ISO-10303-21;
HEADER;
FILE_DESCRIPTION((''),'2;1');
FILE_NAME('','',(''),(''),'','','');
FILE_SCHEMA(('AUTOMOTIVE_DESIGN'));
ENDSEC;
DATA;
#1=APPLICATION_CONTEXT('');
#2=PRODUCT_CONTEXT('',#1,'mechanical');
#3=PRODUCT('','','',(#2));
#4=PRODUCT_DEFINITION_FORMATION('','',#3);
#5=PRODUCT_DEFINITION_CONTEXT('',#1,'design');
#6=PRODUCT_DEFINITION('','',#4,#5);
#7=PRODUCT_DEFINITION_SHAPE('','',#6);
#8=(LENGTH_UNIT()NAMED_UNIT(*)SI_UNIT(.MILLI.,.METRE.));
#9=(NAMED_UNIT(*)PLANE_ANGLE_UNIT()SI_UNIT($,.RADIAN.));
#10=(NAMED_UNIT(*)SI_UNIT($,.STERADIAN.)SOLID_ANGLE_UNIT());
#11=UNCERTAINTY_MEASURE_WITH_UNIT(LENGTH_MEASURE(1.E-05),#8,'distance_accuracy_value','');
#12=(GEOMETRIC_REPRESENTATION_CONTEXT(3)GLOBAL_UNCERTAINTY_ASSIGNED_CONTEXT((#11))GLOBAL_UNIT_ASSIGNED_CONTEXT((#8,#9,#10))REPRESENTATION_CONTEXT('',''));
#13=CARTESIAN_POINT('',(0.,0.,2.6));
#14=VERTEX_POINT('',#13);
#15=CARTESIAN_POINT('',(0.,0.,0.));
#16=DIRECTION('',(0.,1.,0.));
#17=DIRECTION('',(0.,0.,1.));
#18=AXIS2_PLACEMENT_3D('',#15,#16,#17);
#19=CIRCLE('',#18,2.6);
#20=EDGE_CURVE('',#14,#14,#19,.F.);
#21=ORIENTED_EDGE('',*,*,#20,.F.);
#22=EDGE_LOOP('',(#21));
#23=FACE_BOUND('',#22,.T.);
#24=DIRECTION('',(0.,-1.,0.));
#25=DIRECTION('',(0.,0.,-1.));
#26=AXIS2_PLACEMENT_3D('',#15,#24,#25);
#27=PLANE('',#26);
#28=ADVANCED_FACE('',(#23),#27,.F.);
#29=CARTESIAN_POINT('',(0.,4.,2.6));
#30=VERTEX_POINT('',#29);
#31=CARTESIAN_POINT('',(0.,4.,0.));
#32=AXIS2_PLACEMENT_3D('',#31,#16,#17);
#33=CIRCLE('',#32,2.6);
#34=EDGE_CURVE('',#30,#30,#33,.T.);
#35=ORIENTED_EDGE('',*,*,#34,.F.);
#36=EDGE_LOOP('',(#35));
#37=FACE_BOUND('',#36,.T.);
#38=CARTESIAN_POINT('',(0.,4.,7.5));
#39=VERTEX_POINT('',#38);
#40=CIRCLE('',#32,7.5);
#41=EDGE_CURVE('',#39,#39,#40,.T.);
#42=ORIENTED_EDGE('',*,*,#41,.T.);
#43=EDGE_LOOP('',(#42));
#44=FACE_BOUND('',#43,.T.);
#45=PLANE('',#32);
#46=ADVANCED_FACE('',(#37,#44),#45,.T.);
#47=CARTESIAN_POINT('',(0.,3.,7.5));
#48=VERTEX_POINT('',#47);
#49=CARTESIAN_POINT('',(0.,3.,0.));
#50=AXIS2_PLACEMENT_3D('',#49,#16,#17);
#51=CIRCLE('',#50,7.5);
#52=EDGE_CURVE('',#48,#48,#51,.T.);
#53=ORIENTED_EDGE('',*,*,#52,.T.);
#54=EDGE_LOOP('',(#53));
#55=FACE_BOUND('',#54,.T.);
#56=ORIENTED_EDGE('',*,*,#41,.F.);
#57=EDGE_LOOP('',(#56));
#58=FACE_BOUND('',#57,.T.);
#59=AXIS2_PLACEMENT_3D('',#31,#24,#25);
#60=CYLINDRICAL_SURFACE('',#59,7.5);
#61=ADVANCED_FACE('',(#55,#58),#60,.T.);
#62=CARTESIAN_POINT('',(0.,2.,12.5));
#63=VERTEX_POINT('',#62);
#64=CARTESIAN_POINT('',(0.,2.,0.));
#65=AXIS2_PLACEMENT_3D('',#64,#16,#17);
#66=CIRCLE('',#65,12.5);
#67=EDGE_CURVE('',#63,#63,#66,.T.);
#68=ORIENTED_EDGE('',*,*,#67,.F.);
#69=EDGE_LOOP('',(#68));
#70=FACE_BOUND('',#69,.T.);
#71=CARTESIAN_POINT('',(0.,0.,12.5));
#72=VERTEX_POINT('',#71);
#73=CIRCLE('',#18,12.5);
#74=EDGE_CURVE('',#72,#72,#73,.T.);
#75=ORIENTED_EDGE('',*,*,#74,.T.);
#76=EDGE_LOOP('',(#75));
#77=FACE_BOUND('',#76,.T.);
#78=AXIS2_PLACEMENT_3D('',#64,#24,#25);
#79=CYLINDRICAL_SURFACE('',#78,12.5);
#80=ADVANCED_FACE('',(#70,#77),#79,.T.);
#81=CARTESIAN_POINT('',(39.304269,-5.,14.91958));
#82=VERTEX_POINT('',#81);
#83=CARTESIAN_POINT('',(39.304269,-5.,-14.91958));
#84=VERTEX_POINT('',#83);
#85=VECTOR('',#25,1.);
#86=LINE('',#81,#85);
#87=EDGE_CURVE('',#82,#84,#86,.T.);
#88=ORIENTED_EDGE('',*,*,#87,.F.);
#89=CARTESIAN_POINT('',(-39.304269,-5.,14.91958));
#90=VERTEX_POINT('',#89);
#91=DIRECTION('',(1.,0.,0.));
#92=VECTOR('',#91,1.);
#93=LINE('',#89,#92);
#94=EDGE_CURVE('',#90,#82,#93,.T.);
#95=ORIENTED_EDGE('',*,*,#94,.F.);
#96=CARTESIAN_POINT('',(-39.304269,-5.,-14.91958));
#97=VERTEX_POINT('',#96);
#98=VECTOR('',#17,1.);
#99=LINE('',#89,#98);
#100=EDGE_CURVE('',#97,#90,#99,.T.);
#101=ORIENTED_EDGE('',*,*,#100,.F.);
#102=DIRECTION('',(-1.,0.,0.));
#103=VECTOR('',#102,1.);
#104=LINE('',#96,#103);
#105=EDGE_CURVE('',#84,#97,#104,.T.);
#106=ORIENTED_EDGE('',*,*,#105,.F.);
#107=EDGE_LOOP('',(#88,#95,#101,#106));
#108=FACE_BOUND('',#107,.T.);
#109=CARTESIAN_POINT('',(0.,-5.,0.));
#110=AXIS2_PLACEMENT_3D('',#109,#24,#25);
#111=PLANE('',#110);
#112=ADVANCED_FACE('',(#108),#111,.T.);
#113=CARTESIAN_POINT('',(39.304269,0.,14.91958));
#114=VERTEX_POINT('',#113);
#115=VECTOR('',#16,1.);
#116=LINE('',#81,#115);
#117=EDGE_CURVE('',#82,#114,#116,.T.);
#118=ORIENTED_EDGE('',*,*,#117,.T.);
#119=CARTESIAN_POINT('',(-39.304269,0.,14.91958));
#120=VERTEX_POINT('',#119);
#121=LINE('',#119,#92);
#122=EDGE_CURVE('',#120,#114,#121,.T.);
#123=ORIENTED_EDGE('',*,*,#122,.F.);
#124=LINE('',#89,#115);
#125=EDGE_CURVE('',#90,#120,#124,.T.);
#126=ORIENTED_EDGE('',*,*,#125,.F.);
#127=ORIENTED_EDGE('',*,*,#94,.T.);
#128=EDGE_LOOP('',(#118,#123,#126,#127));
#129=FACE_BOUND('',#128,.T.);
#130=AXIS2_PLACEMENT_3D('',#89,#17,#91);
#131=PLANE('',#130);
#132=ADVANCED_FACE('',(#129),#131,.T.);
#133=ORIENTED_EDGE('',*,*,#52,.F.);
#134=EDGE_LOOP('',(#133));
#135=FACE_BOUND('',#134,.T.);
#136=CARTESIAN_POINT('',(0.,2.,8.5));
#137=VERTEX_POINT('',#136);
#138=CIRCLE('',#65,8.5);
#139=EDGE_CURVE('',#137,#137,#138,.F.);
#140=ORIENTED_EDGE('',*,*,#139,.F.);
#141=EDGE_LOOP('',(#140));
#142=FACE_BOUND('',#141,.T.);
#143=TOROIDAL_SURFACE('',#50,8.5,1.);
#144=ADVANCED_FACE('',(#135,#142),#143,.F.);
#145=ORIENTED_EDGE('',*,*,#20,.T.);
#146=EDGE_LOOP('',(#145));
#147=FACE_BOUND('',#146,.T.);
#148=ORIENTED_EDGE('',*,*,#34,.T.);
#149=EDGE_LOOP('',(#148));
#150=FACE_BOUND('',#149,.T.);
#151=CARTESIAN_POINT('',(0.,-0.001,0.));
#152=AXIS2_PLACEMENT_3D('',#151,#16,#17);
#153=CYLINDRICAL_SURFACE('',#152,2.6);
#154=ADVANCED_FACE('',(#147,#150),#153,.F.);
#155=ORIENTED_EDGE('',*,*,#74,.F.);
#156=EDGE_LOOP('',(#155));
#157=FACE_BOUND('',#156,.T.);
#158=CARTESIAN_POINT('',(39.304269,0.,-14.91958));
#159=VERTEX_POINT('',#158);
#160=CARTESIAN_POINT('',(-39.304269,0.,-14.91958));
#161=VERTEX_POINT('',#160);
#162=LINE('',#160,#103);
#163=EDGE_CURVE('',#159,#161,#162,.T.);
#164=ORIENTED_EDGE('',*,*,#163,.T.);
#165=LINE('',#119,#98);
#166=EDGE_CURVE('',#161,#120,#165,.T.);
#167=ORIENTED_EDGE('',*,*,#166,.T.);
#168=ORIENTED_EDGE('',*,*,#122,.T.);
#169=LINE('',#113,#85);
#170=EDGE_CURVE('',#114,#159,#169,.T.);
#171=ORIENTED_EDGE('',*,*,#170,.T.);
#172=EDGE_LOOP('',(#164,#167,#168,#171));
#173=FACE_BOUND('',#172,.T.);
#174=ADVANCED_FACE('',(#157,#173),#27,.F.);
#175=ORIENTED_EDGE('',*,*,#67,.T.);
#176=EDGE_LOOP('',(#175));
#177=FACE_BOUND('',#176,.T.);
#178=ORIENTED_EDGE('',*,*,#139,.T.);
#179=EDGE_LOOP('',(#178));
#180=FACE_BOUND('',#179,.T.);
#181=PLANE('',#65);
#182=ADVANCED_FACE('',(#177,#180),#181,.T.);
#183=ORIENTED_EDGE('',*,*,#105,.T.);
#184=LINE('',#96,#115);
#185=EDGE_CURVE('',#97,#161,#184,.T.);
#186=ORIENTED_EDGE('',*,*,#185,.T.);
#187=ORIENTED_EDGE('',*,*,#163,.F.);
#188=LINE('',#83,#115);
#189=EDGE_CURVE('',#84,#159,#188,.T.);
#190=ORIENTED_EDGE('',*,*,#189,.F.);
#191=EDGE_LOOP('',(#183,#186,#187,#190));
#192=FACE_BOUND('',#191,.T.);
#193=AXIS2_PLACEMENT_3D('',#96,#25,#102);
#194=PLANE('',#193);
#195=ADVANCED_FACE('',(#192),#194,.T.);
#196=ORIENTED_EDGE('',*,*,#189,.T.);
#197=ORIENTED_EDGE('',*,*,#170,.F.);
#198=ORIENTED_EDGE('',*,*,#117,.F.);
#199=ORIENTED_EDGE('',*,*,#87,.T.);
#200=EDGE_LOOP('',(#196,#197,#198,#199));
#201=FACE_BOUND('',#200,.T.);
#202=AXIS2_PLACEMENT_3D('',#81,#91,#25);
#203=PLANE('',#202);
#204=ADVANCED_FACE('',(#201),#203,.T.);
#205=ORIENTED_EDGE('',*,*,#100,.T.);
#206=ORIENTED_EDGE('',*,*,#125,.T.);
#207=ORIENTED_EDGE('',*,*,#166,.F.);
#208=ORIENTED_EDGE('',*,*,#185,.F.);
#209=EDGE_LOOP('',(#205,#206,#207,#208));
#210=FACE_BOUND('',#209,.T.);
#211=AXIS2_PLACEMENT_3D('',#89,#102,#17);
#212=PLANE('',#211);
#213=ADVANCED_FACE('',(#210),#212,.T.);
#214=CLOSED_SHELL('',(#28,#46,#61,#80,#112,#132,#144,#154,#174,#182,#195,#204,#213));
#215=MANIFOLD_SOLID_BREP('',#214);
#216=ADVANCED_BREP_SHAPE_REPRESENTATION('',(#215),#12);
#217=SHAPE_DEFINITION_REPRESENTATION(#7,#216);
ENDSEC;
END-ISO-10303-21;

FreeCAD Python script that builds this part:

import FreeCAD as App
import Part
import Sketcher


def edges_at(feature, points):
    """Names of the edges that pass closest to the given points."""
    edges = feature.Shape.Edges
    near = lambda p: min(range(len(edges)), key=lambda i: edges[i].distToShape(Part.Vertex(*p))[0])
    return sorted({f"Edge{near(p) + 1}" for p in points})

doc = App.newDocument("Part")
params = doc.addObject("Spreadsheet::Sheet", "Params")
for row, (alias, value) in enumerate([
    ("sketch1_diameter", "25 mm"),
    ("pad1_length", "2 mm"),
    ("sketch2_diameter", "15 mm"),
    ("pad2_length", "2 mm"),
    ("fillet_radius", "1 mm"),
    ("sketch3_diameter", "5.2 mm"),
    ("pad3_length", "5 mm"),
], start=1):
    params.set(f"A{row}", alias)
    params.set(f"B{row}", "=" + value)
    params.setAlias(f"B{row}", alias)

body = doc.addObject("PartDesign::Body", "Body")

# Sketch on XZ plane
sketch1 = body.newObject("Sketcher::SketchObject", "Sketch")
sketch1.AttachmentSupport = (doc.getObject("XZ_Plane"), [""])
sketch1.MapMode = "FlatFace"
sketch1.addGeometry(Part.Circle(App.Vector(0, 0, 0), App.Vector(0, 0, 1), 12), False)
sketch1.addConstraint(Sketcher.Constraint("Coincident", 0, 3, -1, 1))
sketch1.addConstraint(Sketcher.Constraint("Diameter", 0, 25.0))
sketch1.setExpression("Constraints[1]", "Params.sketch1_diameter")
pad1 = body.newObject("PartDesign::Pad", "Pad")
pad1.Profile = sketch1
pad1.setExpression("Length", "Params.pad1_length")
pad1.Reversed = True

# Sketch on XZ plane
sketch2 = body.newObject("Sketcher::SketchObject", "Sketch001")
sketch2.AttachmentSupport = (doc.getObject("XZ_Plane"), [""])
sketch2.MapMode = "FlatFace"
sketch2.AttachmentOffset = App.Placement(App.Vector(0, 0, -2), App.Rotation())
sketch2.addGeometry(Part.Circle(App.Vector(0, 0, 0), App.Vector(0, 0, 1), 8), False)
sketch2.addConstraint(Sketcher.Constraint("Coincident", 0, 3, -1, 1))
sketch2.addConstraint(Sketcher.Constraint("Diameter", 0, 15.0))
sketch2.setExpression("Constraints[1]", "Params.sketch2_diameter")
pad2 = body.newObject("PartDesign::Pad", "Pad001")
pad2.Profile = sketch2
pad2.setExpression("Length", "Params.pad2_length")
pad2.Reversed = True
doc.recompute()

fillet = body.newObject("PartDesign::Fillet", "Fillet")
fillet.Base = (pad2, edges_at(pad2, [(0, 2, -7.5)]))
fillet.setExpression("Radius", "Params.fillet_radius")

# Sketch on XZ plane
sketch3 = body.newObject("Sketcher::SketchObject", "Sketch002")
sketch3.AttachmentSupport = (doc.getObject("XZ_Plane"), [""])
sketch3.MapMode = "FlatFace"
sketch3.AttachmentOffset = App.Placement(App.Vector(0, 0, -4), App.Rotation())
sketch3.addGeometry(Part.Circle(App.Vector(0, 0, 0), App.Vector(0, 0, 1), 2.6), False)
sketch3.addConstraint(Sketcher.Constraint("Coincident", 0, 3, -1, 1))
sketch3.addConstraint(Sketcher.Constraint("Diameter", 0, 5.2))
sketch3.setExpression("Constraints[1]", "Params.sketch3_diameter")
pocket1 = body.newObject("PartDesign::Pocket", "Pocket")
pocket1.Profile = sketch3
pocket1.Type = "UpToFirst"
pocket1.Reversed = True

# Sketch on XZ plane
sketch4 = body.newObject("Sketcher::SketchObject", "Sketch003")
sketch4.AttachmentSupport = (doc.getObject("XZ_Plane"), [""])
sketch4.MapMode = "FlatFace"
sketch4.addGeometry(Part.LineSegment(App.Vector(-39, -15, 0), App.Vector(-39, 15, 0)), False)
sketch4.addGeometry(Part.LineSegment(App.Vector(-39, 15, 0), App.Vector(39, 15, 0)), False)
sketch4.addGeometry(Part.LineSegment(App.Vector(39, 15, 0), App.Vector(39, -15, 0)), False)
sketch4.addGeometry(Part.LineSegment(App.Vector(39, -15, 0), App.Vector(-39, -15, 0)), False)
sketch4.addConstraint(Sketcher.Constraint("Coincident", 0, 2, 1, 1))
sketch4.addConstraint(Sketcher.Constraint("Coincident", 1, 2, 2, 1))
sketch4.addConstraint(Sketcher.Constraint("Coincident", 2, 2, 3, 1))
sketch4.addConstraint(Sketcher.Constraint("Coincident", 3, 2, 0, 1))
sketch4.addConstraint(Sketcher.Constraint("Vertical", 0))
sketch4.addConstraint(Sketcher.Constraint("Horizontal", 1))
sketch4.addConstraint(Sketcher.Constraint("Vertical", 2))
sketch4.addConstraint(Sketcher.Constraint("Horizontal", 3))
sketch4.addConstraint(Sketcher.Constraint("Symmetric", 0, 2, 2, 2, -1, 1))
sketch4.addConstraint(Sketcher.Constraint("DistanceX", 1, 1, 1, 2, 78.608538))
sketch4.addConstraint(Sketcher.Constraint("DistanceY", 0, 1, 0, 2, 29.839159))
pad3 = body.newObject("PartDesign::Pad", "Pad002")
pad3.Profile = sketch4
pad3.setExpression("Length", "Params.pad3_length")

doc.recompute()
